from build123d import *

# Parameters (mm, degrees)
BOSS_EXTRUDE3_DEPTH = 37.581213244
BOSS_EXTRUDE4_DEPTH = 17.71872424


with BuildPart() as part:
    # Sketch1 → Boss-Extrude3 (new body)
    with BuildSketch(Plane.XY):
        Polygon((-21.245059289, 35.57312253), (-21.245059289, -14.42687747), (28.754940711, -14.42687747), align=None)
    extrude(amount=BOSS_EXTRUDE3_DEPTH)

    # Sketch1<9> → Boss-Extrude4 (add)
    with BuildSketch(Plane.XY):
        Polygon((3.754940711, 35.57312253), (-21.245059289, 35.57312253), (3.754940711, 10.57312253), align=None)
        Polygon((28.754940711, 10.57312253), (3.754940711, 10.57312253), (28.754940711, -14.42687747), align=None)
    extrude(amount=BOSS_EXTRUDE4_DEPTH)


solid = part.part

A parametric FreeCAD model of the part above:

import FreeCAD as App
import Part
import Sketcher


def add_polygon(sketch, points):
    """Adds a closed chain of lines whose ends are joined by coincident constraints."""
    first, n = sketch.GeometryCount, len(points)
    for a, b in zip(points, points[1:] + points[:1]):
        sketch.addGeometry(Part.LineSegment(App.Vector(*a, 0), App.Vector(*b, 0)), False)
    for i in range(n):
        sketch.addConstraint(Sketcher.Constraint("Coincident", first + i, 2, first + (i + 1) % n, 1))

doc = App.newDocument("Part")
body = doc.addObject("PartDesign::Body", "Body")

# Sketch on XY plane
sketch1 = body.newObject("Sketcher::SketchObject", "Sketch")
sketch1.AttachmentSupport = (doc.getObject("XY_Plane"), [""])
sketch1.MapMode = "FlatFace"
add_polygon(sketch1, [(-21.245059, 35.573123), (-21.245059, -14.426877), (28.754941, -14.426877)])  # lines 0-2
sketch1.addConstraint(Sketcher.Constraint("Vertical", 0))
sketch1.addConstraint(Sketcher.Constraint("Horizontal", 1))
sketch1.addConstraint(Sketcher.Constraint("Equal", 1, 0))
sketch1.addConstraint(Sketcher.Constraint("DistanceX", 1, 1, 1, 2, 50.0))
sketch1.addConstraint(Sketcher.Constraint("DistanceX", 0, 2, -1, 1, 21.245059))
sketch1.addConstraint(Sketcher.Constraint("DistanceY", 0, 2, -1, 1, 14.426877))
pad1 = body.newObject("PartDesign::Pad", "Pad")
pad1.Profile = sketch1
pad1.Length = 37.581213

# Sketch on XY plane
sketch2 = body.newObject("Sketcher::SketchObject", "Sketch001")
sketch2.AttachmentSupport = (doc.getObject("XY_Plane"), [""])
sketch2.MapMode = "FlatFace"
add_polygon(sketch2, [(3.754941, 35.573123), (-21.245059, 35.573123), (3.754941, 10.573123)])  # lines 0-2
add_polygon(sketch2, [(28.754941, 10.573123), (3.754941, 10.573123), (28.754941, -14.426877)])  # lines 3-5
sketch2.addConstraint(Sketcher.Constraint("Horizontal", 0))
sketch2.addConstraint(Sketcher.Constraint("Vertical", 2))
sketch2.addConstraint(Sketcher.Constraint("Horizontal", 3))
sketch2.addConstraint(Sketcher.Constraint("Vertical", 5))
sketch2.addConstraint(Sketcher.Constraint("Coincident", 3, 2, 1, 2))
sketch2.addConstraint(Sketcher.Constraint("Parallel", 1, 4))
sketch2.addConstraint(Sketcher.Constraint("Equal", 0, 3))
sketch2.addConstraint(Sketcher.Constraint("Equal", 3, 2))
sketch2.addConstraint(Sketcher.Constraint("DistanceX", 0, 2, 0, 1, 25.0))
sketch2.addConstraint(Sketcher.Constraint("DistanceX", 0, 2, -1, 1, 21.245059))
sketch2.addConstraint(Sketcher.Constraint("DistanceY", -1, 1, 0, 2, 35.573123))
pad2 = body.newObject("PartDesign::Pad", "Pad001")
pad2.Profile = sketch2
pad2.Length = 17.718724

doc.recompute()
